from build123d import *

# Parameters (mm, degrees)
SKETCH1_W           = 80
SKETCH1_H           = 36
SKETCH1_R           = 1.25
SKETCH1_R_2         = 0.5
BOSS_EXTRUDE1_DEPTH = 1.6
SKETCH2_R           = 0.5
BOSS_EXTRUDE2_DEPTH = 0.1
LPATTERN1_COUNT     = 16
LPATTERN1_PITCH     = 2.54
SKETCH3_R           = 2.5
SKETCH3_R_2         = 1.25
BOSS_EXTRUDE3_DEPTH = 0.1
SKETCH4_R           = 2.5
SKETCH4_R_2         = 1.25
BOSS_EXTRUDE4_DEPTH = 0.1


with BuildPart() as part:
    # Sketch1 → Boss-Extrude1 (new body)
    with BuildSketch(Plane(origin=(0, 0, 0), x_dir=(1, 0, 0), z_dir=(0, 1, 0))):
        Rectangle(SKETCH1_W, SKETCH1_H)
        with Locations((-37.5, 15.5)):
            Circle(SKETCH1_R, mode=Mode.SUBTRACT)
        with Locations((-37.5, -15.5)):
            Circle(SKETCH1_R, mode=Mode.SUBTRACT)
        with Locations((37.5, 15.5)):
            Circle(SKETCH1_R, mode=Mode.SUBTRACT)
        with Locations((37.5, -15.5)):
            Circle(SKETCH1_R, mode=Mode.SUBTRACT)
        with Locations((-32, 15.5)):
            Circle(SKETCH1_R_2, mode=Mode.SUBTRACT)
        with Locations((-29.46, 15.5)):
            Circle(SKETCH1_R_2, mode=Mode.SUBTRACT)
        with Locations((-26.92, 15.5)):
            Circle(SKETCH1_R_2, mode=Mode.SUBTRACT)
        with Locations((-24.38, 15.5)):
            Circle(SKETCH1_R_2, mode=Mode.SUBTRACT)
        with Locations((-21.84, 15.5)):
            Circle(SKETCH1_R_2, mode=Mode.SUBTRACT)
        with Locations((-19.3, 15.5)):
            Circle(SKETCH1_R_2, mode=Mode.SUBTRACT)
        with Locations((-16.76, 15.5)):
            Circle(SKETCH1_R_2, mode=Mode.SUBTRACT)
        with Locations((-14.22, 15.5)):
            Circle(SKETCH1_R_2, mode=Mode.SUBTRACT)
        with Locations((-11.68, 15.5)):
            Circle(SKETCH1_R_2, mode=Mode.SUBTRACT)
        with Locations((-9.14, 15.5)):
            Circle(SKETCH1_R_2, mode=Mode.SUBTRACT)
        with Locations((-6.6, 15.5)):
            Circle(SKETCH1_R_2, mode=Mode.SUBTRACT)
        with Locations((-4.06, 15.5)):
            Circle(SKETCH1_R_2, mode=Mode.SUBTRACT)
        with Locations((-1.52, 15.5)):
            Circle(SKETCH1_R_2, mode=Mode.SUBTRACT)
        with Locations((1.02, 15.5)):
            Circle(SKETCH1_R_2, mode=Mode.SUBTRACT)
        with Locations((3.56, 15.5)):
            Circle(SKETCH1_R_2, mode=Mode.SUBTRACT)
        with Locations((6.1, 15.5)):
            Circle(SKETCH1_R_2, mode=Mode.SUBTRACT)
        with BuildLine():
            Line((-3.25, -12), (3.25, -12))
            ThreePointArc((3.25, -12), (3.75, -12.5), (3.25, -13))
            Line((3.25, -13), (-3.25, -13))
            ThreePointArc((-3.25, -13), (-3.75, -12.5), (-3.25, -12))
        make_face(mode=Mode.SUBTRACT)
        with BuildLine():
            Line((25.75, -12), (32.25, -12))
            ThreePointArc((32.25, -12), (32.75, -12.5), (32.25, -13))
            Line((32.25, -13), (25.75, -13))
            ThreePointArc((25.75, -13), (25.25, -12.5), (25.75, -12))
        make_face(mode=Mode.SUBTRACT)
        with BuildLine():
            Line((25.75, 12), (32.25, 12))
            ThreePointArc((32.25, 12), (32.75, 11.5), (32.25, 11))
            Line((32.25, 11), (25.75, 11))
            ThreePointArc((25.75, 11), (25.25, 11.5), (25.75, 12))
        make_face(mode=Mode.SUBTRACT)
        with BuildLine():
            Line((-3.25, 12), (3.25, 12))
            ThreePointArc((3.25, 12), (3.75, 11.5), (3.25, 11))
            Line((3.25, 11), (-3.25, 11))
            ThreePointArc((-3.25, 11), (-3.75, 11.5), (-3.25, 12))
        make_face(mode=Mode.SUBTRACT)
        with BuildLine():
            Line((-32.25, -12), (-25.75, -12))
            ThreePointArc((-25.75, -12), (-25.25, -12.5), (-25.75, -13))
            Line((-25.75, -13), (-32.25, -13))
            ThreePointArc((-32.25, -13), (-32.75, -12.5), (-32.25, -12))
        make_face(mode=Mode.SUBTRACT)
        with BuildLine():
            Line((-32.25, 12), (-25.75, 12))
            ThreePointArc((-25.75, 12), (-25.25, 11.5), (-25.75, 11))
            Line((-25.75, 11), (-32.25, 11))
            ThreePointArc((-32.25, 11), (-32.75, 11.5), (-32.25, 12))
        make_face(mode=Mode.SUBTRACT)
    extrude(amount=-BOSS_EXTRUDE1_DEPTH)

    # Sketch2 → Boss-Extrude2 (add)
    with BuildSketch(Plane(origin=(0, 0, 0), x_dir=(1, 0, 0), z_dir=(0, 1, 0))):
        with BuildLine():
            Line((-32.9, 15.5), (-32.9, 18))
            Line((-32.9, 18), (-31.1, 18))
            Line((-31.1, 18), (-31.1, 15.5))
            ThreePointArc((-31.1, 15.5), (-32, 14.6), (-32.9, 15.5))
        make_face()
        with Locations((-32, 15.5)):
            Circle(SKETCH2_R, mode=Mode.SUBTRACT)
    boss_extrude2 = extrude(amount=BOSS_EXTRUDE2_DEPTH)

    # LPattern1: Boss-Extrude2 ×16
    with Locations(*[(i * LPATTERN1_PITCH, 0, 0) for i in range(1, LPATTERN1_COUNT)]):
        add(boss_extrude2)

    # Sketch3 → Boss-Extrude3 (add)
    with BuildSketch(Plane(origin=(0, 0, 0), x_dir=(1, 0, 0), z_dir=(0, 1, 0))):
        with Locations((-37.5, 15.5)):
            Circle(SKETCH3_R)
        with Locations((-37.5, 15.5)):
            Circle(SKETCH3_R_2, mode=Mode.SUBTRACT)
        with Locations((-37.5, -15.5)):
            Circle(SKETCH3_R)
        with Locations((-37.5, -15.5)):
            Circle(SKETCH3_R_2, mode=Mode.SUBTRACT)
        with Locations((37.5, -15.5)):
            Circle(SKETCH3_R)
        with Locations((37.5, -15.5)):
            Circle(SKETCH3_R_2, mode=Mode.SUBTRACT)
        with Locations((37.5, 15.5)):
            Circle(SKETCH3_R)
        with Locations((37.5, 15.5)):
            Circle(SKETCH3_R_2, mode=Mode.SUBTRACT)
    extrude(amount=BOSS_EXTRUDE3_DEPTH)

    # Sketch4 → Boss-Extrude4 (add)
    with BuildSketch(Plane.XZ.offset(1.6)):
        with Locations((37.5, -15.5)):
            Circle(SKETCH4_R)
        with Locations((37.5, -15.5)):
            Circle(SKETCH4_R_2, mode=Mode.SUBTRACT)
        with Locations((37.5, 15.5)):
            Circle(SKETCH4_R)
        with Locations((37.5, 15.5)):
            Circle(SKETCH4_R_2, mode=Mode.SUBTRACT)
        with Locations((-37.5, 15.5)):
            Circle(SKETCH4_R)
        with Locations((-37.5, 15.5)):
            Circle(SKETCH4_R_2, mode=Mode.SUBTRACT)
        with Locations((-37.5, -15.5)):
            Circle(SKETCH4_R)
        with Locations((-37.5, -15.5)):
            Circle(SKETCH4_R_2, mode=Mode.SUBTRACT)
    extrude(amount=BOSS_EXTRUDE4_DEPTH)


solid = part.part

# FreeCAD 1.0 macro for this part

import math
import FreeCAD as App
import Part
import Sketcher
Q = App.Units.Quantity

doc = App.newDocument("Part")
body = doc.addObject("PartDesign::Body", "Body")

# Sketch on XZ plane
sketch1 = body.newObject("Sketcher::SketchObject", "Sketch")
sketch1.AttachmentSupport = (doc.getObject("XZ_Plane"), [""])
sketch1.MapMode = "FlatFace"
sketch1.addGeometry([
    Part.LineSegment(App.Vector(-40, -18, 0), App.Vector(-40, 18, 0)),  # 0
    Part.LineSegment(App.Vector(-40, 18, 0), App.Vector(40, 18, 0)),  # 1
    Part.LineSegment(App.Vector(40, 18, 0), App.Vector(40, -18, 0)),  # 2
    Part.LineSegment(App.Vector(40, -18, 0), App.Vector(-40, -18, 0)),  # 3
    Part.Circle(App.Vector(-37.5, 15.5, 0), App.Vector(0, 0, 1), 1.2),  # 4
    Part.ArcOfCircle(Part.Circle(App.Vector(-32.2, 12.5, 0), App.Vector(0, 0, 1), 0.5), math.radians(90), math.radians(270)),  # 5
    Part.LineSegment(App.Vector(-32.2, 12, 0), App.Vector(-25.8, 12, 0)),  # 6
    Part.ArcOfCircle(Part.Circle(App.Vector(-25.8, 12.5, 0), App.Vector(0, 0, 1), 0.5), math.radians(-90), math.radians(90)),  # 7
    Part.LineSegment(App.Vector(-25.8, 13, 0), App.Vector(-32.2, 13, 0)),  # 8
    Part.ArcOfCircle(Part.Circle(App.Vector(-3.2, 12.5, 0), App.Vector(0, 0, 1), 0.5), math.radians(90), math.radians(270)),  # 9
    Part.LineSegment(App.Vector(-3.2, 12, 0), App.Vector(3.2, 12, 0)),  # 10
    Part.ArcOfCircle(Part.Circle(App.Vector(3.2, 12.5, 0), App.Vector(0, 0, 1), 0.5), math.radians(-90), math.radians(90)),  # 11
    Part.LineSegment(App.Vector(3.2, 13, 0), App.Vector(-3.2, 13, 0)),  # 12
    Part.Circle(App.Vector(37.5, 15.5, 0), App.Vector(0, 0, 1), 1.2),  # 13
    Part.ArcOfCircle(Part.Circle(App.Vector(25.8, 12.5, 0), App.Vector(0, 0, 1), 0.5), math.radians(90), math.radians(270)),  # 14
    Part.LineSegment(App.Vector(25.8, 12, 0), App.Vector(32.2, 12, 0)),  # 15
    Part.ArcOfCircle(Part.Circle(App.Vector(32.2, 12.5, 0), App.Vector(0, 0, 1), 0.5), math.radians(-90), math.radians(90)),  # 16
    Part.LineSegment(App.Vector(32.2, 13, 0), App.Vector(25.8, 13, 0)),  # 17
    Part.ArcOfCircle(Part.Circle(App.Vector(-32.2, -11.5, 0), App.Vector(0, 0, 1), 0.5), math.radians(90), math.radians(270)),  # 18
    Part.LineSegment(App.Vector(-32.2, -12, 0), App.Vector(-25.8, -12, 0)),  # 19
    Part.ArcOfCircle(Part.Circle(App.Vector(-25.8, -11.5, 0), App.Vector(0, 0, 1), 0.5), math.radians(-90), math.radians(90)),  # 20
    Part.LineSegment(App.Vector(-25.8, -11, 0), App.Vector(-32.2, -11, 0)),  # 21
    Part.Circle(App.Vector(-37.5, -15.5, 0), App.Vector(0, 0, 1), 1.2),  # 22
    Part.Circle(App.Vector(-32, -15.5, 0), App.Vector(0, 0, 1), 0.5),  # 23
    Part.Circle(App.Vector(-29.5, -15.5, 0), App.Vector(0, 0, 1), 0.5),  # 24
    Part.Circle(App.Vector(-26.9, -15.5, 0), App.Vector(0, 0, 1), 0.5),  # 25
    Part.Circle(App.Vector(-24.4, -15.5, 0), App.Vector(0, 0, 1), 0.5),  # 26
    Part.Circle(App.Vector(-21.8, -15.5, 0), App.Vector(0, 0, 1), 0.5),  # 27
    Part.Circle(App.Vector(-19.3, -15.5, 0), App.Vector(0, 0, 1), 0.5),  # 28
    Part.Circle(App.Vector(-16.8, -15.5, 0), App.Vector(0, 0, 1), 0.5),  # 29
    Part.Circle(App.Vector(-14.2, -15.5, 0), App.Vector(0, 0, 1), 0.5),  # 30
    Part.Circle(App.Vector(-11.7, -15.5, 0), App.Vector(0, 0, 1), 0.5),  # 31
    Part.Circle(App.Vector(-9.1, -15.5, 0), App.Vector(0, 0, 1), 0.5),  # 32
    Part.Circle(App.Vector(-6.6, -15.5, 0), App.Vector(0, 0, 1), 0.5),  # 33
    Part.Circle(App.Vector(-4.1, -15.5, 0), App.Vector(0, 0, 1), 0.5),  # 34
    Part.Circle(App.Vector(-1.5, -15.5, 0), App.Vector(0, 0, 1), 0.5),  # 35
    Part.ArcOfCircle(Part.Circle(App.Vector(-3.2, -11.5, 0), App.Vector(0, 0, 1), 0.5), math.radians(90), math.radians(270)),  # 36
    Part.LineSegment(App.Vector(-3.2, -12, 0), App.Vector(3.2, -12, 0)),  # 37
    Part.ArcOfCircle(Part.Circle(App.Vector(3.2, -11.5, 0), App.Vector(0, 0, 1), 0.5), math.radians(-90), math.radians(90)),  # 38
    Part.LineSegment(App.Vector(3.2, -11, 0), App.Vector(-3.2, -11, 0)),  # 39
    Part.Circle(App.Vector(1, -15.5, 0), App.Vector(0, 0, 1), 0.5),  # 40
    Part.Circle(App.Vector(3.6, -15.5, 0), App.Vector(0, 0, 1), 0.5),  # 41
    Part.Circle(App.Vector(6.1, -15.5, 0), App.Vector(0, 0, 1), 0.5),  # 42
    Part.ArcOfCircle(Part.Circle(App.Vector(25.8, -11.5, 0), App.Vector(0, 0, 1), 0.5), math.radians(90), math.radians(270)),  # 43
    Part.LineSegment(App.Vector(25.8, -12, 0), App.Vector(32.2, -12, 0)),  # 44
    Part.ArcOfCircle(Part.Circle(App.Vector(32.2, -11.5, 0), App.Vector(0, 0, 1), 0.5), math.radians(-90), math.radians(90)),  # 45
    Part.LineSegment(App.Vector(32.2, -11, 0), App.Vector(25.8, -11, 0)),  # 46
    Part.Circle(App.Vector(37.5, -15.5, 0), App.Vector(0, 0, 1), 1.2),  # 47
], False)
sketch1.addConstraint([
    Sketcher.Constraint("Coincident", 0, 2, 1, 1),
    Sketcher.Constraint("Coincident", 1, 2, 2, 1),
    Sketcher.Constraint("Coincident", 2, 2, 3, 1),
    Sketcher.Constraint("Coincident", 3, 2, 0, 1),
    Sketcher.Constraint("Tangent", 5, 2, 6, 1),
    Sketcher.Constraint("Tangent", 6, 2, 7, 1),
    Sketcher.Constraint("Tangent", 7, 2, 8, 1),
    Sketcher.Constraint("Tangent", 8, 2, 5, 1),
    Sketcher.Constraint("Tangent", 9, 2, 10, 1),
    Sketcher.Constraint("Tangent", 10, 2, 11, 1),
    Sketcher.Constraint("Tangent", 11, 2, 12, 1),
    Sketcher.Constraint("Tangent", 12, 2, 9, 1),
    Sketcher.Constraint("Tangent", 14, 2, 15, 1),
    Sketcher.Constraint("Tangent", 15, 2, 16, 1),
    Sketcher.Constraint("Tangent", 16, 2, 17, 1),
    Sketcher.Constraint("Tangent", 17, 2, 14, 1),
    Sketcher.Constraint("Tangent", 18, 2, 19, 1),
    Sketcher.Constraint("Tangent", 19, 2, 20, 1),
    Sketcher.Constraint("Tangent", 20, 2, 21, 1),
    Sketcher.Constraint("Tangent", 21, 2, 18, 1),
    Sketcher.Constraint("Tangent", 36, 2, 37, 1),
    Sketcher.Constraint("Tangent", 37, 2, 38, 1),
    Sketcher.Constraint("Tangent", 38, 2, 39, 1),
    Sketcher.Constraint("Tangent", 39, 2, 36, 1),
    Sketcher.Constraint("Tangent", 43, 2, 44, 1),
    Sketcher.Constraint("Tangent", 44, 2, 45, 1),
    Sketcher.Constraint("Tangent", 45, 2, 46, 1),
    Sketcher.Constraint("Tangent", 46, 2, 43, 1),
    Sketcher.Constraint("Vertical", 0),
    Sketcher.Constraint("Horizontal", 1),
    Sketcher.Constraint("Vertical", 2),
    Sketcher.Constraint("Horizontal", 3),
    Sketcher.Constraint("Horizontal", 6),
    Sketcher.Constraint("Horizontal", 8),
    Sketcher.Constraint("Horizontal", 10),
    Sketcher.Constraint("Horizontal", 12),
    Sketcher.Constraint("Horizontal", 15),
    Sketcher.Constraint("Horizontal", 17),
    Sketcher.Constraint("Horizontal", 19),
    Sketcher.Constraint("Horizontal", 21),
    Sketcher.Constraint("Horizontal", 37),
    Sketcher.Constraint("Horizontal", 39),
    Sketcher.Constraint("Horizontal", 44),
    Sketcher.Constraint("Horizontal", 46),
    Sketcher.Constraint("Equal", 7, 9),
    Sketcher.Constraint("Equal", 4, 13),
    Sketcher.Constraint("Equal", 11, 14),
    Sketcher.Constraint("Equal", 16, 18),
    Sketcher.Constraint("Equal", 13, 22),
    Sketcher.Constraint("Equal", 20, 23),
    Sketcher.Constraint("Equal", 23, 24),
    Sketcher.Constraint("Equal", 24, 25),
    Sketcher.Constraint("Equal", 25, 26),
    Sketcher.Constraint("Equal", 26, 27),
    Sketcher.Constraint("Equal", 27, 28),
    Sketcher.Constraint("Equal", 28, 29),
    Sketcher.Constraint("Equal", 29, 30),
    Sketcher.Constraint("Equal", 30, 31),
    Sketcher.Constraint("Equal", 31, 32),
    Sketcher.Constraint("Equal", 32, 33),
    Sketcher.Constraint("Equal", 33, 34),
    Sketcher.Constraint("Equal", 34, 35),
    Sketcher.Constraint("Equal", 35, 36),
    Sketcher.Constraint("Equal", 38, 40),
    Sketcher.Constraint("Equal", 40, 41),
    Sketcher.Constraint("Equal", 41, 42),
    Sketcher.Constraint("Equal", 42, 43),
    Sketcher.Constraint("Equal", 22, 47),
    Sketcher.Constraint("Symmetric", 13, 3, 22, 3, -1, 1),
    Sketcher.Constraint("Symmetric", 4, 3, 47, 3, -1, 1),
    Sketcher.Constraint("Symmetric", 0, 2, 2, 2, -1, 1),
    Sketcher.Constraint("Symmetric", 15, 2, 18, 2, -1, 1),
    Sketcher.Constraint("Symmetric", 10, 2, 36, 2, -1, 1),
    Sketcher.Constraint("Symmetric", 6, 2, 43, 2, -1, 1),
    Sketcher.Constraint("Symmetric", 4, 3, 13, 3, -2),
    Sketcher.Constraint("Symmetric", 7, 3, 14, 3, -2),
    Sketcher.Constraint("Horizontal", 7, 3, 9, 3),
    Sketcher.Constraint("Horizontal", 22, 3, 23, 3),
    Sketcher.Constraint("Horizontal", 23, 3, 24, 3),
    Sketcher.Constraint("Horizontal", 24, 3, 25, 3),
    Sketcher.Constraint("Horizontal", 25, 3, 26, 3),
    Sketcher.Constraint("Horizontal", 26, 3, 27, 3),
    Sketcher.Constraint("Horizontal", 27, 3, 28, 3),
    Sketcher.Constraint("Horizontal", 28, 3, 29, 3),
    Sketcher.Constraint("Horizontal", 29, 3, 30, 3),
    Sketcher.Constraint("Horizontal", 30, 3, 31, 3),
    Sketcher.Constraint("Horizontal", 31, 3, 32, 3),
    Sketcher.Constraint("Horizontal", 32, 3, 33, 3),
    Sketcher.Constraint("Horizontal", 33, 3, 34, 3),
    Sketcher.Constraint("Horizontal", 34, 3, 35, 3),
    Sketcher.Constraint("Horizontal", 35, 3, 40, 3),
    Sketcher.Constraint("Horizontal", 40, 3, 41, 3),
    Sketcher.Constraint("Horizontal", 41, 3, 42, 3),
    Sketcher.Constraint("Vertical", 5, 3, 18, 3),
    Sketcher.Constraint("Vertical", 7, 3, 20, 3),
    Sketcher.Constraint("Vertical", 9, 3, 36, 3),
    Sketcher.Constraint("Vertical", 11, 3, 38, 3),
    Sketcher.Constraint("Vertical", 16, 3, 45, 3),
    Sketcher.Constraint("Equal", 8, 10),
    Sketcher.Constraint("Diameter", 23, Q("1 mm")),
    Sketcher.Constraint("Diameter", 4, Q("2.5 mm")),
    Sketcher.Constraint("DistanceX", 1, 1, 1, 2, Q("80 mm")),
    Sketcher.Constraint("DistanceY", 0, 1, 0, 2, Q("36 mm")),
    Sketcher.Constraint("DistanceX", 6, 1, 6, 2, Q("6.5 mm")),
    Sketcher.Constraint("DistanceX", 23, 3, -1, 1, Q("32 mm")),
    Sketcher.Constraint("DistanceY", -1, 1, 5, 2, Q("12 mm")),
    Sketcher.Constraint("DistanceY", 5, 3, 4, 3, Q("3 mm")),
    Sketcher.Constraint("DistanceX", 5, 3, 9, 3, Q("29 mm")),
    Sketcher.Constraint("DistanceX", 4, 3, 13, 3, Q("75 mm")),
    Sketcher.Constraint("DistanceX", 28, 3, -1, 1, Q("19.3 mm")),
    Sketcher.Constraint("DistanceX", 33, 3, -1, 1, Q("6.6 mm")),
    Sketcher.Constraint("DistanceX", -1, 1, 42, 3, Q("6.1 mm")),
    Sketcher.Constraint("DistanceX", 26, 3, 31, 3, Q("12.7 mm")),
    Sketcher.Constraint("DistanceX", 27, 3, 32, 3, Q("12.7 mm")),
    Sketcher.Constraint("DistanceX", 29, 3, 34, 3, Q("12.7 mm")),
    Sketcher.Constraint("DistanceX", 30, 3, 35, 3, Q("12.7 mm")),
    Sketcher.Constraint("DistanceX", 24, 3, -1, 1, Q("29.46 mm")),
    Sketcher.Constraint("DistanceX", 25, 3, -1, 1, Q("26.92 mm")),
    Sketcher.Constraint("DistanceX", 26, 3, -1, 1, Q("24.38 mm")),
    Sketcher.Constraint("DistanceX", 27, 3, -1, 1, Q("21.84 mm")),
    Sketcher.Constraint("DistanceX", 29, 3, -1, 1, Q("16.76 mm")),
    Sketcher.Constraint("DistanceX", 30, 3, -1, 1, Q("14.22 mm")),
    Sketcher.Constraint("DistanceX", -1, 1, 40, 3, Q("1.02 mm")),
    Sketcher.Constraint("DistanceX", -1, 1, 41, 3, Q("3.56 mm")),
])
pad1 = body.newObject("PartDesign::Pad", "Pad")
pad1.Profile = sketch1
pad1.Length = 1.6

# Sketch on XZ plane
sketch2 = body.newObject("Sketcher::SketchObject", "Sketch001")
sketch2.AttachmentSupport = (doc.getObject("XZ_Plane"), [""])
sketch2.MapMode = "FlatFace"
sketch2.addGeometry([
    Part.LineSegment(App.Vector(-32.9, -18, 0), App.Vector(-32.9, -15.5, 0)),  # 0
    Part.ArcOfCircle(Part.Circle(App.Vector(-32, -15.5, 0), App.Vector(0, 0, 1), 0.9), math.radians(0), math.radians(180)),  # 1
    Part.LineSegment(App.Vector(-31.1, -15.5, 0), App.Vector(-31.1, -18, 0)),  # 2
    Part.LineSegment(App.Vector(-31.1, -18, 0), App.Vector(-32.9, -18, 0)),  # 3
    Part.Circle(App.Vector(-32, -15.5, 0), App.Vector(0, 0, 1), 0.5),  # 4
], False)
sketch2.addConstraint([
    Sketcher.Constraint("Tangent", 0, 2, 1, 2),
    Sketcher.Constraint("Tangent", 1, 1, 2, 1),
    Sketcher.Constraint("Coincident", 2, 2, 3, 1),
    Sketcher.Constraint("Coincident", 3, 2, 0, 1),
    Sketcher.Constraint("Vertical", 0),
    Sketcher.Constraint("Vertical", 2),
    Sketcher.Constraint("Horizontal", 3),
    Sketcher.Constraint("Coincident", 4, 3, 1, 3),
    Sketcher.Constraint("Diameter", 4, Q("1 mm")),
    Sketcher.Constraint("Radius", 1, Q("0.9 mm")),
    Sketcher.Constraint("DistanceY", 0, 1, 0, 2, Q("2.5 mm")),
    Sketcher.Constraint("DistanceX", 1, 3, -1, 1, Q("32 mm")),
    Sketcher.Constraint("DistanceY", 2, 2, -1, 1, Q("18 mm")),
])
pad2 = body.newObject("PartDesign::Pad", "Pad001")
pad2.Profile = sketch2
pad2.Length = 0.1
pad2.Reversed = True
doc.recompute()

linearpattern = body.newObject("PartDesign::LinearPattern", "LinearPattern")
linearpattern.Originals = [pad2]
linearpattern.Direction = (doc.getObject("X_Axis"), [""])
linearpattern.Mode = "offset"
linearpattern.Offset = 2.54
linearpattern.Occurrences = 16
body.Tip = linearpattern

# Sketch on XZ plane
sketch3 = body.newObject("Sketcher::SketchObject", "Sketch002")
sketch3.AttachmentSupport = (doc.getObject("XZ_Plane"), [""])
sketch3.MapMode = "FlatFace"
sketch3.addGeometry([
    Part.Circle(App.Vector(-37.5, -15.5, 0), App.Vector(0, 0, 1), 2.5),  # 0
    Part.Circle(App.Vector(-37.5, -15.5, 0), App.Vector(0, 0, 1), 1.2),  # 1
    Part.Circle(App.Vector(-37.5, 15.5, 0), App.Vector(0, 0, 1), 2.5),  # 2
    Part.Circle(App.Vector(-37.5, 15.5, 0), App.Vector(0, 0, 1), 1.2),  # 3
    Part.Circle(App.Vector(37.5, 15.5, 0), App.Vector(0, 0, 1), 2.5),  # 4
    Part.Circle(App.Vector(37.5, 15.5, 0), App.Vector(0, 0, 1), 1.2),  # 5
    Part.Circle(App.Vector(37.5, -15.5, 0), App.Vector(0, 0, 1), 2.5),  # 6
    Part.Circle(App.Vector(37.5, -15.5, 0), App.Vector(0, 0, 1), 1.2),  # 7
], False)
sketch3.addConstraint([
    Sketcher.Constraint("Coincident", 1, 3, 0, 3),
    Sketcher.Constraint("Coincident", 3, 3, 2, 3),
    Sketcher.Constraint("Coincident", 5, 3, 4, 3),
    Sketcher.Constraint("Coincident", 7, 3, 6, 3),
    Sketcher.Constraint("Equal", 0, 2),
    Sketcher.Constraint("Equal", 1, 3),
    Sketcher.Constraint("Equal", 2, 4),
    Sketcher.Constraint("Equal", 3, 5),
    Sketcher.Constraint("Equal", 4, 6),
    Sketcher.Constraint("Equal", 5, 7),
    Sketcher.Constraint("Symmetric", 0, 3, 4, 3, -1, 1),
    Sketcher.Constraint("Symmetric", 2, 3, 6, 3, -1, 1),
    Sketcher.Constraint("Symmetric", 2, 3, 4, 3, -2),
    Sketcher.Constraint("Diameter", 0, Q("5 mm")),
    Sketcher.Constraint("Diameter", 1, Q("2.5 mm")),
    Sketcher.Constraint("DistanceY", 0, 3, 2, 3, Q("31 mm")),
    Sketcher.Constraint("DistanceX", 2, 3, 4, 3, Q("75 mm")),
])
pad3 = body.newObject("PartDesign::Pad", "Pad002")
pad3.Profile = sketch3
pad3.Length = 0.1
pad3.Reversed = True

# Sketch on XZ plane
sketch4 = body.newObject("Sketcher::SketchObject", "Sketch003")
sketch4.AttachmentSupport = (doc.getObject("XZ_Plane"), [""])
sketch4.MapMode = "FlatFace"
sketch4.AttachmentOffset = App.Placement(App.Vector(0, 0, 1.6), App.Rotation())
sketch4.addGeometry([
    Part.Circle(App.Vector(37.5, -15.5, 0), App.Vector(0, 0, 1), 2.5),  # 0
    Part.Circle(App.Vector(37.5, -15.5, 0), App.Vector(0, 0, 1), 1.2),  # 1
    Part.Circle(App.Vector(37.5, 15.5, 0), App.Vector(0, 0, 1), 2.5),  # 2
    Part.Circle(App.Vector(37.5, 15.5, 0), App.Vector(0, 0, 1), 1.2),  # 3
    Part.Circle(App.Vector(-37.5, 15.5, 0), App.Vector(0, 0, 1), 2.5),  # 4
    Part.Circle(App.Vector(-37.5, 15.5, 0), App.Vector(0, 0, 1), 1.2),  # 5
    Part.Circle(App.Vector(-37.5, -15.5, 0), App.Vector(0, 0, 1), 2.5),  # 6
    Part.Circle(App.Vector(-37.5, -15.5, 0), App.Vector(0, 0, 1), 1.2),  # 7
], False)
sketch4.addConstraint([
    Sketcher.Constraint("Coincident", 1, 3, 0, 3),
    Sketcher.Constraint("Coincident", 3, 3, 2, 3),
    Sketcher.Constraint("Coincident", 5, 3, 4, 3),
    Sketcher.Constraint("Coincident", 7, 3, 6, 3),
    Sketcher.Constraint("Equal", 0, 2),
    Sketcher.Constraint("Equal", 1, 3),
    Sketcher.Constraint("Equal", 2, 4),
    Sketcher.Constraint("Equal", 3, 5),
    Sketcher.Constraint("Equal", 4, 6),
    Sketcher.Constraint("Equal", 5, 7),
    Sketcher.Constraint("Symmetric", 0, 3, 4, 3, -1, 1),
    Sketcher.Constraint("Symmetric", 2, 3, 6, 3, -1, 1),
    Sketcher.Constraint("Symmetric", 2, 3, 4, 3, -2),
    Sketcher.Constraint("Diameter", 0, Q("5 mm")),
    Sketcher.Constraint("Diameter", 1, Q("2.5 mm")),
    Sketcher.Constraint("DistanceY", 0, 3, 2, 3, Q("31 mm")),
    Sketcher.Constraint("DistanceX", 4, 3, 2, 3, Q("75 mm")),
])
pad4 = body.newObject("PartDesign::Pad", "Pad003")
pad4.Profile = sketch4
pad4.Length = 0.1

doc.recompute()
